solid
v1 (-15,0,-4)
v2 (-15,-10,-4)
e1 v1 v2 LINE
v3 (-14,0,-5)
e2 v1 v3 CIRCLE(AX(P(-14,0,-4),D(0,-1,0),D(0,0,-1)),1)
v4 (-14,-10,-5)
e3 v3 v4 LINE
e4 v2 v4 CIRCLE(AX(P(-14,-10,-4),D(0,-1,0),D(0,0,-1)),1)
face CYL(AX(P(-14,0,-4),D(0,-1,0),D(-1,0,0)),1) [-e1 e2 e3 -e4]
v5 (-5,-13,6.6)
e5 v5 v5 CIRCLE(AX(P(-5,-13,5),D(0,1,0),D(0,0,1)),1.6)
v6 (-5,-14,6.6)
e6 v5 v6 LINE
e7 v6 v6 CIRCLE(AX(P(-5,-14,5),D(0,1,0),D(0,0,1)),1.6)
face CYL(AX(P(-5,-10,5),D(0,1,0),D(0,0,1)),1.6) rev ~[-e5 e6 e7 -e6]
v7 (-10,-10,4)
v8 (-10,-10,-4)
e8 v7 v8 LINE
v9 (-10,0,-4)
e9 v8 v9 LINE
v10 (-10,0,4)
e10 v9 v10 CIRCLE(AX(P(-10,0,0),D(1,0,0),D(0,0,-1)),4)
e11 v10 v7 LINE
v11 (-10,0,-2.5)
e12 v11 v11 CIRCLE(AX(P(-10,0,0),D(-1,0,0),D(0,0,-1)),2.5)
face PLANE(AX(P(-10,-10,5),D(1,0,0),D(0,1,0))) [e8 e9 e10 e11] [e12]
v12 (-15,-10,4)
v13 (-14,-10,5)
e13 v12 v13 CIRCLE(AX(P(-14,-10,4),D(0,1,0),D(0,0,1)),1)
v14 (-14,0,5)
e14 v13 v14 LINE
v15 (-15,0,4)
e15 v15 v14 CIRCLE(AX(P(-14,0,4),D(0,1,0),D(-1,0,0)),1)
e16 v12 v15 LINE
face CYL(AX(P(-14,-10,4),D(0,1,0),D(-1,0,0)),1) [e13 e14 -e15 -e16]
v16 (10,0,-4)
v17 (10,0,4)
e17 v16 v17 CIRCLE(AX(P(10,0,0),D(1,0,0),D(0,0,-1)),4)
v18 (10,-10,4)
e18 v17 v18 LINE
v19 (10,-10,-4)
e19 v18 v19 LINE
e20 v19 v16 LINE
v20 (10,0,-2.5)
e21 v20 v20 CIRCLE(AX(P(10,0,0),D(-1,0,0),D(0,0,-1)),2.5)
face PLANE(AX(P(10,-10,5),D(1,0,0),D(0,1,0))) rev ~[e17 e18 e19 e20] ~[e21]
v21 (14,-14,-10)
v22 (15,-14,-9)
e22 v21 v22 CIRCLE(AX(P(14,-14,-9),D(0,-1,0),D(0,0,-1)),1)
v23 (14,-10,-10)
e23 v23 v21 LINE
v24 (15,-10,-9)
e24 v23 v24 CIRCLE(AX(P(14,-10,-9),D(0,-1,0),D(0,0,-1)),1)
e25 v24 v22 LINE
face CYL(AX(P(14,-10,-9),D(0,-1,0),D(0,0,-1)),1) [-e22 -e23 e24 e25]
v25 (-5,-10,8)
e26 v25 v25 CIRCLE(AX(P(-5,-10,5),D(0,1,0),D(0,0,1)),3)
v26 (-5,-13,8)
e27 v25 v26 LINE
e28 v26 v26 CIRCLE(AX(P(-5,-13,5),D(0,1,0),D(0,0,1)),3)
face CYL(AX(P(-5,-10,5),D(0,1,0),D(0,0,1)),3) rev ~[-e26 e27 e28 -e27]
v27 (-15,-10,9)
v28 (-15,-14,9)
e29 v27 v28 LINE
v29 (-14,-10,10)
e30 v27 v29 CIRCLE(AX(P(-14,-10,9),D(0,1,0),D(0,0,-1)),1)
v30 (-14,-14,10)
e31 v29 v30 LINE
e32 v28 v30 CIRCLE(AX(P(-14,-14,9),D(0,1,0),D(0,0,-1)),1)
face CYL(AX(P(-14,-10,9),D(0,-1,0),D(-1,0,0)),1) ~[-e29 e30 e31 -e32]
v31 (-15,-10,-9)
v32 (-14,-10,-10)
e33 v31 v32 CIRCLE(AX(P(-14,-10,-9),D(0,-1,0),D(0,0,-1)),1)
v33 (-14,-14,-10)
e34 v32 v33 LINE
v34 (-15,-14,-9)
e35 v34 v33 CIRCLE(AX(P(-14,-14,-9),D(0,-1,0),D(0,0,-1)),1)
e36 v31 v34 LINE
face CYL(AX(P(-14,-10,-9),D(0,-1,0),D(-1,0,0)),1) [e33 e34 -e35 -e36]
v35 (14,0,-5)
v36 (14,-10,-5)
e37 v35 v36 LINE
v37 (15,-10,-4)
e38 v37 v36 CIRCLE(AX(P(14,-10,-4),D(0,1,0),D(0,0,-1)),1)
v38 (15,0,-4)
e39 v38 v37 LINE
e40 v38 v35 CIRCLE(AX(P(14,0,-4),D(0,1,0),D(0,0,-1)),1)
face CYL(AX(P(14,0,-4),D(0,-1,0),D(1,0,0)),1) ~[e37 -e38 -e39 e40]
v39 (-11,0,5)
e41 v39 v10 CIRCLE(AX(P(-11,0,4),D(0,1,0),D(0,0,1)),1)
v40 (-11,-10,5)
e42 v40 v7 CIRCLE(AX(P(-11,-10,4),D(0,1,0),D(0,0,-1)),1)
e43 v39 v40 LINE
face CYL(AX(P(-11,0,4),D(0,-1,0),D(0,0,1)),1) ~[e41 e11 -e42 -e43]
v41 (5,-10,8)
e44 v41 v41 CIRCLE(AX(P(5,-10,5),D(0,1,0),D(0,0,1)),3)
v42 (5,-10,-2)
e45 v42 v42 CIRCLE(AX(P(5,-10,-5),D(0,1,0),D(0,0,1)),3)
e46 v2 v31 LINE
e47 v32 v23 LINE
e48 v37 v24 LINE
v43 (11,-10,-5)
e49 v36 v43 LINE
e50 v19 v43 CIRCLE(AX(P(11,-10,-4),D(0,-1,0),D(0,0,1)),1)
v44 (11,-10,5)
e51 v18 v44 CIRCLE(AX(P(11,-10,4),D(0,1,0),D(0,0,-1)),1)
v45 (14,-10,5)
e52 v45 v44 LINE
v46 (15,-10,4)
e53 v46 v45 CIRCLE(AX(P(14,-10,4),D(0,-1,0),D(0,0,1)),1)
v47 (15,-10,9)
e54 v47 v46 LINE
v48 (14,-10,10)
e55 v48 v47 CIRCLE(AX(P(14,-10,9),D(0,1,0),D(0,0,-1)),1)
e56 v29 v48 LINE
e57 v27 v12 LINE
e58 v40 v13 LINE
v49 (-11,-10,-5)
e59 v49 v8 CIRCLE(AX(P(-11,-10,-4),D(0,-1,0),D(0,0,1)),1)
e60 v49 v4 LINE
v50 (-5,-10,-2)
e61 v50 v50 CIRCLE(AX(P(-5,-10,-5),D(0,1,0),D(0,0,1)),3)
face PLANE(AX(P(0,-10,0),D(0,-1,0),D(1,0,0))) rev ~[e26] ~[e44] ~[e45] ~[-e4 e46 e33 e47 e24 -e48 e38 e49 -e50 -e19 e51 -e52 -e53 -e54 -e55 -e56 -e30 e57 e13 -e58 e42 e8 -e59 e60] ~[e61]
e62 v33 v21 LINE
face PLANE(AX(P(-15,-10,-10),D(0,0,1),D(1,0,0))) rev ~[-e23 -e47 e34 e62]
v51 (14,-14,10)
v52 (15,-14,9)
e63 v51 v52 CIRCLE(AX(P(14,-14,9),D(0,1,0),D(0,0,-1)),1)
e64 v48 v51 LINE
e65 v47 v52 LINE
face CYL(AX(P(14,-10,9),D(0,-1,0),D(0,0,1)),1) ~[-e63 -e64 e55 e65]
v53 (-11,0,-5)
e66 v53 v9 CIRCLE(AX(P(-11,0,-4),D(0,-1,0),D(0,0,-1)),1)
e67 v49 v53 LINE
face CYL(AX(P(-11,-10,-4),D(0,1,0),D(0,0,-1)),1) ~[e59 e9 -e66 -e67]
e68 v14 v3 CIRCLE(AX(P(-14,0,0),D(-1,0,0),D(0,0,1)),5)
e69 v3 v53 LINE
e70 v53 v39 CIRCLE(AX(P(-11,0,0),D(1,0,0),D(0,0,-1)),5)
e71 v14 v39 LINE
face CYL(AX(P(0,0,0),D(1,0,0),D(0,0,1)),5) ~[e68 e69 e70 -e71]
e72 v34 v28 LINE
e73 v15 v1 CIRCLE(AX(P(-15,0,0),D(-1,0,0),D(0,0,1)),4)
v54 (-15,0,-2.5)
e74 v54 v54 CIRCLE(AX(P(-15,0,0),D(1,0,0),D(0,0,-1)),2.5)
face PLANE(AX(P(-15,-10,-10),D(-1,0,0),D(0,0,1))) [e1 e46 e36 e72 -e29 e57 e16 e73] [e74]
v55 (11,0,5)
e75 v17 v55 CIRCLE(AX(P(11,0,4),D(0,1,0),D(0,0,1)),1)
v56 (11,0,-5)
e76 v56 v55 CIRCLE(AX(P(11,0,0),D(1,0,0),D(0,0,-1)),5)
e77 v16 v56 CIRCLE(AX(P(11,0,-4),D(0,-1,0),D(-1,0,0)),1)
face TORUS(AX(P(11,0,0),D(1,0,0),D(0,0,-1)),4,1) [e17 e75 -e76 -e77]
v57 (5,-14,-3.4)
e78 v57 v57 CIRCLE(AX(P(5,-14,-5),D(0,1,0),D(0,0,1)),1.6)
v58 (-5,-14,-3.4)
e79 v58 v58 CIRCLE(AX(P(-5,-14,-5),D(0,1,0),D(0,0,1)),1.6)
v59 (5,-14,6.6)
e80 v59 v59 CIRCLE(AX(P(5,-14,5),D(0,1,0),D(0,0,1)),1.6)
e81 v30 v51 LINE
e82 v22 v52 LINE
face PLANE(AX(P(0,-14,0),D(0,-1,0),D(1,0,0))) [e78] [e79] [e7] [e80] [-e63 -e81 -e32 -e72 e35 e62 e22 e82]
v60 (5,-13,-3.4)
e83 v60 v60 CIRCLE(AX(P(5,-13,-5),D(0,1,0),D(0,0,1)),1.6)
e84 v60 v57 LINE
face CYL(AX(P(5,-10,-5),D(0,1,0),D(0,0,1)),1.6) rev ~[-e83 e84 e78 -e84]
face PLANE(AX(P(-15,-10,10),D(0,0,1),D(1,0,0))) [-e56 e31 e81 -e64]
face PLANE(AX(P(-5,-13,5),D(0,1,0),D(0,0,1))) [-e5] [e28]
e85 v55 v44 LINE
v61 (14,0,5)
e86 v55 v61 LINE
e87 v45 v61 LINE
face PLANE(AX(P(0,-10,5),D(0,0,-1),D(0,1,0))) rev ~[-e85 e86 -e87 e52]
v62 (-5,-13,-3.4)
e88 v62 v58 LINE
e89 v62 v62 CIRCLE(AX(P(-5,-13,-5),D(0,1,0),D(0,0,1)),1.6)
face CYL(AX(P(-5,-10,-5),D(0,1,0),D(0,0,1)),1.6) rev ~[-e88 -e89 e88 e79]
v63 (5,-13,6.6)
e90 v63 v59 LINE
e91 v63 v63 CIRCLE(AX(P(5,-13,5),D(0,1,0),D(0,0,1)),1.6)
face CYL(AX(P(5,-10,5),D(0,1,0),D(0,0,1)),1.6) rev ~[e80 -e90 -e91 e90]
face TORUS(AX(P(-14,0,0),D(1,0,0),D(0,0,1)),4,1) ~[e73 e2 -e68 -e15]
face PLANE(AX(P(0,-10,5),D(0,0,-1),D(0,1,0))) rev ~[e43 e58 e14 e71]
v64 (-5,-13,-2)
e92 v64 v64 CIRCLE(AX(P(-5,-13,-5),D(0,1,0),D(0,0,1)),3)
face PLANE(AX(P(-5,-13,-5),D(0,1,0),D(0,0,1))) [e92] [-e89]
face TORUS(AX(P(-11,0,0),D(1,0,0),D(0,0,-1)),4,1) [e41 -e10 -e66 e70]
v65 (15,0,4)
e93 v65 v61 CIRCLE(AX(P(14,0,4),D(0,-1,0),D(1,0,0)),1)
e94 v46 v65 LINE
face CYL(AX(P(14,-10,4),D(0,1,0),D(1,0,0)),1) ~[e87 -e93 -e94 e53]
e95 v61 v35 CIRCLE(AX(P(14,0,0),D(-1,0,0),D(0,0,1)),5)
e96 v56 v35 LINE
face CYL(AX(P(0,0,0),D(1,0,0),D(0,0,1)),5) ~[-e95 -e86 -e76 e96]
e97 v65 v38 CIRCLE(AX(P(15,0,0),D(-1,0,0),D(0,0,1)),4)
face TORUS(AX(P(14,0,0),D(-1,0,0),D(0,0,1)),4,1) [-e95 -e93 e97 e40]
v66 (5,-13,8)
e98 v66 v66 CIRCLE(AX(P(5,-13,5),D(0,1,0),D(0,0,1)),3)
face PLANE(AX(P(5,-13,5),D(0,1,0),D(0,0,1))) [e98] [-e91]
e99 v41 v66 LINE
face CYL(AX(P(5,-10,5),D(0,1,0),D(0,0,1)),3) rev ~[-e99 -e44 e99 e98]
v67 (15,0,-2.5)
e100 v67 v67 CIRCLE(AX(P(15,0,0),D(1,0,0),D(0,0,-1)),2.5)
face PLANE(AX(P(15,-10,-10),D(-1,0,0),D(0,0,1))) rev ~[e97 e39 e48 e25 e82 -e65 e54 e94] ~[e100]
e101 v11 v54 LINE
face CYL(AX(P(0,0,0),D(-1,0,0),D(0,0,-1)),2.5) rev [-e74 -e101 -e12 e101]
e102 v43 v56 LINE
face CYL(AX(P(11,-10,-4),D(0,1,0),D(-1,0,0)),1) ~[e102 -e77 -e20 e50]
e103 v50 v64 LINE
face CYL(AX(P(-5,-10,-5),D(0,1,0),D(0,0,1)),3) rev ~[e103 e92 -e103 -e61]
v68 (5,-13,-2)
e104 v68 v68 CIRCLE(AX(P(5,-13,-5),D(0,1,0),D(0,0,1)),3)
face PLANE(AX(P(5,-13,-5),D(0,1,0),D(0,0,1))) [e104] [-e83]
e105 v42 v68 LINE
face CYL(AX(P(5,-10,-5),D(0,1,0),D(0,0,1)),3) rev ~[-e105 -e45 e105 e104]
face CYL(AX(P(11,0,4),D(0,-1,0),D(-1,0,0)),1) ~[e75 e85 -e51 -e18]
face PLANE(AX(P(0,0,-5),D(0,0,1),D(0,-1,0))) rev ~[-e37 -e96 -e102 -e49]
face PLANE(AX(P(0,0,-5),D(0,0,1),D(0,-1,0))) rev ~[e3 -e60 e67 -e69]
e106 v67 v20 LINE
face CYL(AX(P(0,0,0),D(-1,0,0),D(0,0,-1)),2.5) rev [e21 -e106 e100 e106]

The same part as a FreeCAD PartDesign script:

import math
import FreeCAD as App
import Part
import Sketcher

V = App.Vector


def edges_at(feature, points):
    """Names of the edges that pass closest to the given points."""
    edges = feature.Shape.Edges
    near = lambda p: min(range(len(edges)), key=lambda i: edges[i].distToShape(Part.Vertex(*p))[0])
    return sorted({f"Edge{near(p) + 1}" for p in points})

doc = App.newDocument("Part")
body = doc.addObject("PartDesign::Body", "Body")

# Sketch on YZ plane
sketch1 = body.newObject("Sketcher::SketchObject", "Sketch")
sketch1.AttachmentSupport = (doc.getObject("YZ_Plane"), [""])
sketch1.MapMode = "FlatFace"
sketch1.addGeometry(Part.LineSegment(V(-10, -5, 0), V(0, -5, 0)), False)
sketch1.addGeometry(Part.ArcOfCircle(Part.Circle(V(0, 0, 0), V(0, 0, 1), 5), math.radians(-90), math.radians(90)), False)
sketch1.addGeometry(Part.LineSegment(V(0, 5, 0), V(-10, 5, 0)), False)
sketch1.addGeometry(Part.LineSegment(V(-10, 5, 0), V(-10, -5, 0)), False)
sketch1.addGeometry(Part.Circle(V(0, 0, 0), V(0, 0, 1), 2.5), False)
sketch1.addConstraint(Sketcher.Constraint("Tangent", 0, 2, 1, 1))
sketch1.addConstraint(Sketcher.Constraint("Tangent", 1, 2, 2, 1))
sketch1.addConstraint(Sketcher.Constraint("Coincident", 2, 2, 3, 1))
sketch1.addConstraint(Sketcher.Constraint("Coincident", 3, 2, 0, 1))
sketch1.addConstraint(Sketcher.Constraint("Horizontal", 0))
sketch1.addConstraint(Sketcher.Constraint("Horizontal", 2))
sketch1.addConstraint(Sketcher.Constraint("Vertical", 3))
sketch1.addConstraint(Sketcher.Constraint("Coincident", 1, 3, -1, 1))
sketch1.addConstraint(Sketcher.Constraint("Coincident", 4, 3, -1, 1))
sketch1.addConstraint(Sketcher.Constraint("Equal", 2, 3))
sketch1.addConstraint(Sketcher.Constraint("Diameter", 4, 5.0))
sketch1.addConstraint(Sketcher.Constraint("Radius", 1, 5.0))
pad1 = body.newObject("PartDesign::Pad", "Pad")
pad1.Profile = sketch1
pad1.Length = 30
pad1.Midplane = True

# Sketch on XZ plane
sketch2 = body.newObject("Sketcher::SketchObject", "Sketch001")
sketch2.AttachmentSupport = (doc.getObject("XZ_Plane"), [""])
sketch2.MapMode = "FlatFace"
sketch2.AttachmentOffset = App.Placement(V(0, 0, 10), App.Rotation())
sketch2.addGeometry(Part.LineSegment(V(-15, 10, 0), V(-15, -10, 0)), False)
sketch2.addGeometry(Part.LineSegment(V(-15, -10, 0), V(15, -10, 0)), False)
sketch2.addGeometry(Part.LineSegment(V(15, -10, 0), V(15, 10, 0)), False)
sketch2.addGeometry(Part.LineSegment(V(15, 10, 0), V(-15, 10, 0)), False)
sketch2.addConstraint(Sketcher.Constraint("Coincident", 0, 2, 1, 1))
sketch2.addConstraint(Sketcher.Constraint("Coincident", 1, 2, 2, 1))
sketch2.addConstraint(Sketcher.Constraint("Coincident", 2, 2, 3, 1))
sketch2.addConstraint(Sketcher.Constraint("Coincident", 3, 2, 0, 1))
sketch2.addConstraint(Sketcher.Constraint("Vertical", 0))
sketch2.addConstraint(Sketcher.Constraint("Horizontal", 1))
sketch2.addConstraint(Sketcher.Constraint("Vertical", 2))
sketch2.addConstraint(Sketcher.Constraint("Horizontal", 3))
sketch2.addConstraint(Sketcher.Constraint("Symmetric", 0, 2, 2, 2, -1, 1))
sketch2.addConstraint(Sketcher.Constraint("DistanceX", 1, 1, 1, 2, 30.0))
sketch2.addConstraint(Sketcher.Constraint("DistanceY", 0, 2, 0, 1, 20.0))
pad2 = body.newObject("PartDesign::Pad", "Pad001")
pad2.Profile = sketch2
pad2.Length = 4

# Sketch on XZ plane
sketch3 = body.newObject("Sketcher::SketchObject", "Sketch002")
sketch3.AttachmentSupport = (doc.getObject("XZ_Plane"), [""])
sketch3.MapMode = "FlatFace"
sketch3.AttachmentOffset = App.Placement(V(0, 0, 10), App.Rotation())
sketch3.addGeometry(Part.Circle(V(5, 5, 0), V(0, 0, 1), 1.6), False)
sketch3.addConstraint(Sketcher.Constraint("Diameter", 0, 3.2))
sketch3.addConstraint(Sketcher.Constraint("DistanceX", -1, 1, 0, 3, 5.0))
sketch3.addConstraint(Sketcher.Constraint("DistanceY", -1, 1, 0, 3, 5.0))
pocket1 = body.newObject("PartDesign::Pocket", "Pocket")
pocket1.Profile = sketch3
pocket1.Type = "UpToFirst"
pocket1.Reversed = True

# Sketch on XZ plane
sketch4 = body.newObject("Sketcher::SketchObject", "Sketch003")
sketch4.AttachmentSupport = (doc.getObject("XZ_Plane"), [""])
sketch4.MapMode = "FlatFace"
sketch4.AttachmentOffset = App.Placement(V(0, 0, 10), App.Rotation())
sketch4.addGeometry(Part.Circle(V(5, -5, 0), V(0, 0, 1), 1.6), False)
sketch4.addConstraint(Sketcher.Constraint("Diameter", 0, 3.2))
sketch4.addConstraint(Sketcher.Constraint("DistanceX", -1, 1, 0, 3, 5.0))
sketch4.addConstraint(Sketcher.Constraint("DistanceY", 0, 3, -1, 1, 5.0))
pocket2 = body.newObject("PartDesign::Pocket", "Pocket001")
pocket2.Profile = sketch4
pocket2.Type = "UpToFirst"
pocket2.Reversed = True

# Sketch on XZ plane
sketch5 = body.newObject("Sketcher::SketchObject", "Sketch004")
sketch5.AttachmentSupport = (doc.getObject("XZ_Plane"), [""])
sketch5.MapMode = "FlatFace"
sketch5.AttachmentOffset = App.Placement(V(0, 0, 10), App.Rotation())
sketch5.addGeometry(Part.Circle(V(-5, -5, 0), V(0, 0, 1), 1.6), False)
sketch5.addConstraint(Sketcher.Constraint("Diameter", 0, 3.2))
sketch5.addConstraint(Sketcher.Constraint("DistanceX", 0, 3, -1, 1, 5.0))
sketch5.addConstraint(Sketcher.Constraint("DistanceY", 0, 3, -1, 1, 5.0))
pocket3 = body.newObject("PartDesign::Pocket", "Pocket002")
pocket3.Profile = sketch5
pocket3.Type = "UpToFirst"
pocket3.Reversed = True

# Sketch on XZ plane
sketch6 = body.newObject("Sketcher::SketchObject", "Sketch005")
sketch6.AttachmentSupport = (doc.getObject("XZ_Plane"), [""])
sketch6.MapMode = "FlatFace"
sketch6.AttachmentOffset = App.Placement(V(0, 0, 10), App.Rotation())
sketch6.addGeometry(Part.Circle(V(-5, 5, 0), V(0, 0, 1), 1.6), False)
sketch6.addConstraint(Sketcher.Constraint("Diameter", 0, 3.2))
sketch6.addConstraint(Sketcher.Constraint("DistanceX", 0, 3, -1, 1, 5.0))
sketch6.addConstraint(Sketcher.Constraint("DistanceY", -1, 1, 0, 3, 5.0))
pocket4 = body.newObject("PartDesign::Pocket", "Pocket003")
pocket4.Profile = sketch6
pocket4.Type = "UpToFirst"
pocket4.Reversed = True

# Sketch on XY plane
sketch7 = body.newObject("Sketcher::SketchObject", "Sketch006")
sketch7.AttachmentSupport = (doc.getObject("XY_Plane"), [""])
sketch7.MapMode = "FlatFace"
sketch7.AttachmentOffset = App.Placement(V(0, 0, 5), App.Rotation())
sketch7.addGeometry(Part.LineSegment(V(-10, 11.54371, 0), V(-10, -10, 0)), False)
sketch7.addGeometry(Part.LineSegment(V(-10, -10, 0), V(10, -10, 0)), False)
sketch7.addGeometry(Part.LineSegment(V(10, -10, 0), V(10, 11.54371, 0)), False)
sketch7.addGeometry(Part.LineSegment(V(10, 11.54371, 0), V(-10, 11.54371, 0)), False)
sketch7.addConstraint(Sketcher.Constraint("Coincident", 0, 2, 1, 1))
sketch7.addConstraint(Sketcher.Constraint("Coincident", 1, 2, 2, 1))
sketch7.addConstraint(Sketcher.Constraint("Coincident", 2, 2, 3, 1))
sketch7.addConstraint(Sketcher.Constraint("Coincident", 3, 2, 0, 1))
sketch7.addConstraint(Sketcher.Constraint("Vertical", 0))
sketch7.addConstraint(Sketcher.Constraint("Horizontal", 1))
sketch7.addConstraint(Sketcher.Constraint("Vertical", 2))
sketch7.addConstraint(Sketcher.Constraint("Horizontal", 3))
sketch7.addConstraint(Sketcher.Constraint("DistanceX", 1, 1, 1, 2, 20.0))
sketch7.addConstraint(Sketcher.Constraint("DistanceX", 0, 2, -1, 1, 10.0))
sketch7.addConstraint(Sketcher.Constraint("DistanceY", 0, 2, -1, 1, 10.0))
sketch7.addConstraint(Sketcher.Constraint("DistanceY", 0, 2, 0, 1, 21.54371))
pocket5 = body.newObject("PartDesign::Pocket", "Pocket004")
pocket5.Profile = sketch7
pocket5.Type = "ThroughAll"

# Sketch on XZ plane
sketch8 = body.newObject("Sketcher::SketchObject", "Sketch007")
sketch8.AttachmentSupport = (doc.getObject("XZ_Plane"), [""])
sketch8.MapMode = "FlatFace"
sketch8.AttachmentOffset = App.Placement(V(0, 0, 10), App.Rotation())
sketch8.addGeometry(Part.Circle(V(-5, -5, 0), V(0, 0, 1), 3), False)
sketch8.addGeometry(Part.Circle(V(5, -5, 0), V(0, 0, 1), 3), False)
sketch8.addGeometry(Part.Circle(V(5, 5, 0), V(0, 0, 1), 3), False)
sketch8.addGeometry(Part.Circle(V(-5, 5, 0), V(0, 0, 1), 3), False)
sketch8.addConstraint(Sketcher.Constraint("Equal", 0, 1))
sketch8.addConstraint(Sketcher.Constraint("Equal", 1, 2))
sketch8.addConstraint(Sketcher.Constraint("Equal", 2, 3))
sketch8.addConstraint(Sketcher.Constraint("Symmetric", 0, 3, 2, 3, -1, 1))
sketch8.addConstraint(Sketcher.Constraint("Symmetric", 1, 3, 3, 3, -1, 1))
sketch8.addConstraint(Sketcher.Constraint("Symmetric", 0, 3, 1, 3, -2))
sketch8.addConstraint(Sketcher.Constraint("Diameter", 0, 6.0))
sketch8.addConstraint(Sketcher.Constraint("DistanceX", 0, 3, -1, 1, 5.0))
sketch8.addConstraint(Sketcher.Constraint("DistanceY", 0, 3, -1, 1, 5.0))
pocket6 = body.newObject("PartDesign::Pocket", "Pocket005")
pocket6.Profile = sketch8
pocket6.Length = 3
pocket6.Reversed = True
doc.recompute()

fillet = body.newObject("PartDesign::Fillet", "Fillet")
fillet.Base = (pocket6, edges_at(pocket6, [
    (15, -5, -5),
    (-15, -12, 10),
    (-15, -12, -10),
    (15, -12, -10),
    (15, -12, 10),
    (15, 5, 0),
    (-15, -5, -5),
    (-15, -5, 5),
    (-15, 5, 0),
    (-10, 5, 0),
    (-10, -5, -5),
    (10, -5, -5),
    (10, 5, 0),
    (10, -5, 5),
    (-10, -5, 5),
    (15, -5, 5),
]))
fillet.Radius = 1

doc.recompute()
